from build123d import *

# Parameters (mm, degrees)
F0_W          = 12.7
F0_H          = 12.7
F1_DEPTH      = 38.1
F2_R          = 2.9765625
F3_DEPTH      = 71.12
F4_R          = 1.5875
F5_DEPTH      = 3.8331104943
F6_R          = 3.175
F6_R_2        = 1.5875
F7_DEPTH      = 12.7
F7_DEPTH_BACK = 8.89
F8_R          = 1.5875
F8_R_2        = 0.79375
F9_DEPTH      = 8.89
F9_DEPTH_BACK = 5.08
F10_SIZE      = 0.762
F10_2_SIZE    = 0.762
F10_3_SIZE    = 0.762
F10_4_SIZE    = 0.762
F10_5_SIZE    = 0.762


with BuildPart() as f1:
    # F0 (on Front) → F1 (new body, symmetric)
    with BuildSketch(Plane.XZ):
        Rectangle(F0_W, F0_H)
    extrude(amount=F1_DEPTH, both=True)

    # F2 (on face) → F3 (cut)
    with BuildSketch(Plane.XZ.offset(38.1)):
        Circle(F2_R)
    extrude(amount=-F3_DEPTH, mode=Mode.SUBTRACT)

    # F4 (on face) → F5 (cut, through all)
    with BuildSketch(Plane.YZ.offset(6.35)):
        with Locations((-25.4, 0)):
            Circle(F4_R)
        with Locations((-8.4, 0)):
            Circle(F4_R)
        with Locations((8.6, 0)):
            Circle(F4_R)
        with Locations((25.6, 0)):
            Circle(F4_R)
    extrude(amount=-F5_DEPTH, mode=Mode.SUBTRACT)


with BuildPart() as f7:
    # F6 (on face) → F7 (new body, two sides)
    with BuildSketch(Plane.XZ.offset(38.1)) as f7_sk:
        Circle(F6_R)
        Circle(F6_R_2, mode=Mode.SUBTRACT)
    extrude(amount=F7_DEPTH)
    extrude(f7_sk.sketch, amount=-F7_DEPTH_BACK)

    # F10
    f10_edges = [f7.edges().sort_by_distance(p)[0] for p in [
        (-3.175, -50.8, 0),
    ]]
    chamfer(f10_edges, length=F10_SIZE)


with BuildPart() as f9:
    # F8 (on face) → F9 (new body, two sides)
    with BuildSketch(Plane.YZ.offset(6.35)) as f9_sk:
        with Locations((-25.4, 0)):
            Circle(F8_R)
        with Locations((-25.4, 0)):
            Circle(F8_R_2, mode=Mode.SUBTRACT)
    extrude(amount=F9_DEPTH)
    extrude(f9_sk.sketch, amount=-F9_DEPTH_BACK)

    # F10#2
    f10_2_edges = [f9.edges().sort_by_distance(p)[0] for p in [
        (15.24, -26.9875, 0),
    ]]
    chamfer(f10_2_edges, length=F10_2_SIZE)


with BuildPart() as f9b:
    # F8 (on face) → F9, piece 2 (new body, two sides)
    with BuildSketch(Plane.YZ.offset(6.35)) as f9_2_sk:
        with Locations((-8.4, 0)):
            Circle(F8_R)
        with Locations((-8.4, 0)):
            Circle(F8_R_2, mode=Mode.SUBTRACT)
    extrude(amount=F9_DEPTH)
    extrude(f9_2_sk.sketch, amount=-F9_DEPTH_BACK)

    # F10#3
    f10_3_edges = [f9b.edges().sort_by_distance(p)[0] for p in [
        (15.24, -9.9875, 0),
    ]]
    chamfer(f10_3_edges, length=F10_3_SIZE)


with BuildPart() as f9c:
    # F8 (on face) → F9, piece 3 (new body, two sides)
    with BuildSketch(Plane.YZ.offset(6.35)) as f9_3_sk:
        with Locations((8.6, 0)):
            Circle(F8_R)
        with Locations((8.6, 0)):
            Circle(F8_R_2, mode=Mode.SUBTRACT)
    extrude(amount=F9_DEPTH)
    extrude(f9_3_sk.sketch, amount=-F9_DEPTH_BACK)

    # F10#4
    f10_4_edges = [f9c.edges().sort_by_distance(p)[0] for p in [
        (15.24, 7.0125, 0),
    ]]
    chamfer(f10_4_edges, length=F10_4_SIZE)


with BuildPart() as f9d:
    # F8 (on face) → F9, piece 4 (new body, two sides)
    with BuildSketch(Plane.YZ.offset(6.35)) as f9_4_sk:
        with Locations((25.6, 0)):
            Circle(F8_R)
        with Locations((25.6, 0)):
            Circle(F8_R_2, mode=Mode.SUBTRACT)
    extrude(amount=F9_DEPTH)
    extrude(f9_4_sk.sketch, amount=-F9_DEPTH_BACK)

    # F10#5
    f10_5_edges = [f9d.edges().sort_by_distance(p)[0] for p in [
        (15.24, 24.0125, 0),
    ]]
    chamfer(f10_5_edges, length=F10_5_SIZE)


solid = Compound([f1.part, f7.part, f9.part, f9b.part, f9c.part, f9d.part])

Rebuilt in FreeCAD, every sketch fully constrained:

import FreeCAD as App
import Part
import Sketcher
from FreeCAD import Vector
Q = App.Units.Quantity


def edges_at(feature, points):
    """Names of the edges that pass closest to the given points."""
    edges = feature.Shape.Edges
    near = lambda p: min(range(len(edges)), key=lambda i: edges[i].distToShape(Part.Vertex(*p))[0])
    return sorted({f"Edge{near(p) + 1}" for p in points})


def add_polygon(sketch, points):
    """Adds a closed chain of lines whose ends are joined by coincident constraints."""
    first, n = sketch.GeometryCount, len(points)
    for a, b in zip(points, points[1:] + points[:1]):
        sketch.addGeometry(Part.LineSegment(App.Vector(*a, 0), App.Vector(*b, 0)), False)
    for i in range(n):
        sketch.addConstraint(Sketcher.Constraint("Coincident", first + i, 2, first + (i + 1) % n, 1))

doc = App.newDocument("Part")
params = doc.addObject("Spreadsheet::Sheet", "Params")
for row, (alias, value) in enumerate([
    ("sketch1_width", "0.5 in"),
    ("pad1_length", "3 in"),
    ("sketch2_diameter", "0.234375 in"),
    ("pocket1_length", "2.8 in"),
    ("sketch3_diameter", "0.125 in"),
    ("pocket2_length", "3.83311 mm"),
    ("sketch4_diameter", "0.25 in"),
    ("sketch4_diameter2", "0.125 in"),
    ("pad2_length", "0.5 in"),
    ("pad2_length2", "0.35 in"),
    ("chamfer_size", "0.03 in"),
    ("sketch5_diameter", "0.125 in"),
    ("sketch5_diameter2", "0.0625 in"),
    ("pad3_length", "0.35 in"),
    ("pad3_length2", "0.2 in"),
    ("chamfer2_size", "0.03 in"),
    ("sketch6_diameter", "0.125 in"),
    ("sketch6_diameter2", "0.0625 in"),
    ("pad4_length", "0.35 in"),
    ("pad4_length2", "0.2 in"),
    ("chamfer3_size", "0.03 in"),
    ("sketch7_diameter", "0.125 in"),
    ("sketch7_diameter2", "0.0625 in"),
    ("pad5_length", "0.35 in"),
    ("pad5_length2", "0.2 in"),
    ("chamfer4_size", "0.03 in"),
    ("sketch8_diameter", "0.125 in"),
    ("sketch8_diameter2", "0.0625 in"),
    ("pad6_length", "0.35 in"),
    ("pad6_length2", "0.2 in"),
    ("chamfer5_size", "0.03 in"),
], start=1):
    params.set(f"A{row}", alias)
    params.set(f"B{row}", "=" + value)
    params.setAlias(f"B{row}", alias)

body = doc.addObject("PartDesign::Body", "Body")

# Sketch on XZ plane
sketch1 = body.newObject("Sketcher::SketchObject", "Sketch")
sketch1.AttachmentSupport = (doc.getObject("XZ_Plane"), [""])
sketch1.MapMode = "FlatFace"
add_polygon(sketch1, [(-6, 6), (-6, -6), (6, -6), (6, 6)])  # lines 0-3
sketch1.addConstraint(Sketcher.Constraint("Vertical", 0))
sketch1.addConstraint(Sketcher.Constraint("Horizontal", 1))
sketch1.addConstraint(Sketcher.Constraint("Vertical", 2))
sketch1.addConstraint(Sketcher.Constraint("Horizontal", 3))
sketch1.addConstraint(Sketcher.Constraint("Symmetric", 0, 2, 2, 2, -1, 1))
sketch1.addConstraint(Sketcher.Constraint("Equal", 3, 0))
sketch1.addConstraint(Sketcher.Constraint("DistanceX", 1, 1, 1, 2, Q("0.5 in")))
sketch1.setExpression("Constraints[10]", "Params.sketch1_width")
pad1 = body.newObject("PartDesign::Pad", "Pad")
pad1.Profile = sketch1
pad1.setExpression("Length", "Params.pad1_length")
pad1.Midplane = True

# Sketch on XZ plane
sketch2 = body.newObject("Sketcher::SketchObject", "Sketch001")
sketch2.AttachmentSupport = (doc.getObject("XZ_Plane"), [""])
sketch2.MapMode = "FlatFace"
sketch2.AttachmentOffset = App.Placement(Vector(0, 0, 1.5 * 25.4), App.Rotation())
sketch2.addGeometry(Part.Circle(Vector(0, 0, 0), Vector(0, 0, 1), 3), False)
sketch2.addConstraint(Sketcher.Constraint("Coincident", 0, 3, -1, 1))
sketch2.addConstraint(Sketcher.Constraint("Diameter", 0, Q("0.234375 in")))
sketch2.setExpression("Constraints[1]", "Params.sketch2_diameter")
pocket1 = body.newObject("PartDesign::Pocket", "Pocket")
pocket1.Profile = sketch2
pocket1.setExpression("Length", "Params.pocket1_length")

# Sketch on YZ plane
sketch3 = body.newObject("Sketcher::SketchObject", "Sketch002")
sketch3.AttachmentSupport = (doc.getObject("YZ_Plane"), [""])
sketch3.MapMode = "FlatFace"
sketch3.AttachmentOffset = App.Placement(Vector(0, 0, 0.25 * 25.4), App.Rotation())
sketch3.addGeometry(Part.Circle(Vector(-25.4, 0, 0), Vector(0, 0, 1), 1.6), False)
sketch3.addGeometry(Part.Circle(Vector(-8.4, 0, 0), Vector(0, 0, 1), 1.6), False)
sketch3.addGeometry(Part.Circle(Vector(8.6, 0, 0), Vector(0, 0, 1), 1.6), False)
sketch3.addGeometry(Part.Circle(Vector(25.6, 0, 0), Vector(0, 0, 1), 1.6), False)
sketch3.addConstraint(Sketcher.Constraint("Equal", 0, 1))
sketch3.addConstraint(Sketcher.Constraint("Equal", 1, 2))
sketch3.addConstraint(Sketcher.Constraint("Equal", 2, 3))
sketch3.addConstraint(Sketcher.Constraint("PointOnObject", 0, 3, -1))
sketch3.addConstraint(Sketcher.Constraint("PointOnObject", 1, 3, -1))
sketch3.addConstraint(Sketcher.Constraint("PointOnObject", 2, 3, -1))
sketch3.addConstraint(Sketcher.Constraint("PointOnObject", 3, 3, -1))
sketch3.addConstraint(Sketcher.Constraint("Diameter", 0, Q("0.125 in")))
sketch3.addConstraint(Sketcher.Constraint("DistanceX", 0, 3, -1, 1, Q("1 in")))
sketch3.addConstraint(Sketcher.Constraint("DistanceX", 1, 3, -1, 1, Q("8.4 mm")))
sketch3.addConstraint(Sketcher.Constraint("DistanceX", -1, 1, 2, 3, Q("8.6 mm")))
sketch3.addConstraint(Sketcher.Constraint("DistanceX", -1, 1, 3, 3, Q("25.6 mm")))
sketch3.setExpression("Constraints[7]", "Params.sketch3_diameter")
pocket2 = body.newObject("PartDesign::Pocket", "Pocket001")
pocket2.Profile = sketch3
pocket2.setExpression("Length", "Params.pocket2_length")
body2 = doc.addObject("PartDesign::Body", "Body001")

# Sketch on XZ plane
sketch4 = body2.newObject("Sketcher::SketchObject", "Sketch003")
sketch4.AttachmentSupport = (doc.getObject("XZ_Plane001"), [""])
sketch4.MapMode = "FlatFace"
sketch4.AttachmentOffset = App.Placement(Vector(0, 0, 1.5 * 25.4), App.Rotation())
sketch4.addGeometry(Part.Circle(Vector(0, 0, 0), Vector(0, 0, 1), 3.2), False)
sketch4.addGeometry(Part.Circle(Vector(0, 0, 0), Vector(0, 0, 1), 1.6), False)
sketch4.addConstraint(Sketcher.Constraint("Coincident", 0, 3, -1, 1))
sketch4.addConstraint(Sketcher.Constraint("Coincident", 1, 3, -1, 1))
sketch4.addConstraint(Sketcher.Constraint("Diameter", 0, Q("0.25 in")))
sketch4.addConstraint(Sketcher.Constraint("Diameter", 1, Q("0.125 in")))
sketch4.setExpression("Constraints[2]", "Params.sketch4_diameter")
sketch4.setExpression("Constraints[3]", "Params.sketch4_diameter2")
pad2 = body2.newObject("PartDesign::Pad", "Pad001")
pad2.Profile = sketch4
pad2.Type = "TwoLengths"
pad2.setExpression("Length", "Params.pad2_length")
pad2.setExpression("Length2", "Params.pad2_length2")
doc.recompute()

chamfer = body2.newObject("PartDesign::Chamfer", "Chamfer")
chamfer.Base = (pad2, edges_at(pad2, [(-3.175, -50.8, 0)]))
chamfer.setExpression("Size", "Params.chamfer_size")
body3 = doc.addObject("PartDesign::Body", "Body002")

# Sketch on YZ plane
sketch5 = body3.newObject("Sketcher::SketchObject", "Sketch004")
sketch5.AttachmentSupport = (doc.getObject("YZ_Plane002"), [""])
sketch5.MapMode = "FlatFace"
sketch5.AttachmentOffset = App.Placement(Vector(0, 0, 0.25 * 25.4), App.Rotation())
sketch5.addGeometry(Part.Circle(Vector(-25.4, 0, 0), Vector(0, 0, 1), 1.6), False)
sketch5.addGeometry(Part.Circle(Vector(-25.4, 0, 0), Vector(0, 0, 1), 0.8), False)
sketch5.addConstraint(Sketcher.Constraint("Coincident", 1, 3, 0, 3))
sketch5.addConstraint(Sketcher.Constraint("PointOnObject", 0, 3, -1))
sketch5.addConstraint(Sketcher.Constraint("Diameter", 0, Q("0.125 in")))
sketch5.addConstraint(Sketcher.Constraint("Diameter", 1, Q("0.0625 in")))
sketch5.addConstraint(Sketcher.Constraint("DistanceX", 0, 3, -1, 1, Q("1 in")))
sketch5.setExpression("Constraints[2]", "Params.sketch5_diameter")
sketch5.setExpression("Constraints[3]", "Params.sketch5_diameter2")
pad3 = body3.newObject("PartDesign::Pad", "Pad002")
pad3.Profile = sketch5
pad3.Type = "TwoLengths"
pad3.setExpression("Length", "Params.pad3_length")
pad3.setExpression("Length2", "Params.pad3_length2")
doc.recompute()

chamfer2 = body3.newObject("PartDesign::Chamfer", "Chamfer001")
chamfer2.Base = (pad3, edges_at(pad3, [(15.24, -26.988, 0)]))
chamfer2.setExpression("Size", "Params.chamfer2_size")
body4 = doc.addObject("PartDesign::Body", "Body003")

# Sketch on YZ plane
sketch6 = body4.newObject("Sketcher::SketchObject", "Sketch005")
sketch6.AttachmentSupport = (doc.getObject("YZ_Plane003"), [""])
sketch6.MapMode = "FlatFace"
sketch6.AttachmentOffset = App.Placement(Vector(0, 0, 0.25 * 25.4), App.Rotation())
sketch6.addGeometry(Part.Circle(Vector(-8.4, 0, 0), Vector(0, 0, 1), 1.6), False)
sketch6.addGeometry(Part.Circle(Vector(-8.4, 0, 0), Vector(0, 0, 1), 0.8), False)
sketch6.addConstraint(Sketcher.Constraint("Coincident", 1, 3, 0, 3))
sketch6.addConstraint(Sketcher.Constraint("PointOnObject", 0, 3, -1))
sketch6.addConstraint(Sketcher.Constraint("Diameter", 0, Q("0.125 in")))
sketch6.addConstraint(Sketcher.Constraint("Diameter", 1, Q("0.0625 in")))
sketch6.addConstraint(Sketcher.Constraint("DistanceX", 0, 3, -1, 1, Q("8.4 mm")))
sketch6.setExpression("Constraints[2]", "Params.sketch6_diameter")
sketch6.setExpression("Constraints[3]", "Params.sketch6_diameter2")
pad4 = body4.newObject("PartDesign::Pad", "Pad003")
pad4.Profile = sketch6
pad4.Type = "TwoLengths"
pad4.setExpression("Length", "Params.pad4_length")
pad4.setExpression("Length2", "Params.pad4_length2")
doc.recompute()

chamfer3 = body4.newObject("PartDesign::Chamfer", "Chamfer002")
chamfer3.Base = (pad4, edges_at(pad4, [(15.24, -9.988, 0)]))
chamfer3.setExpression("Size", "Params.chamfer3_size")
body5 = doc.addObject("PartDesign::Body", "Body004")

# Sketch on YZ plane
sketch7 = body5.newObject("Sketcher::SketchObject", "Sketch006")
sketch7.AttachmentSupport = (doc.getObject("YZ_Plane004"), [""])
sketch7.MapMode = "FlatFace"
sketch7.AttachmentOffset = App.Placement(Vector(0, 0, 0.25 * 25.4), App.Rotation())
sketch7.addGeometry(Part.Circle(Vector(8.6, 0, 0), Vector(0, 0, 1), 1.6), False)
sketch7.addGeometry(Part.Circle(Vector(8.6, 0, 0), Vector(0, 0, 1), 0.8), False)
sketch7.addConstraint(Sketcher.Constraint("Coincident", 1, 3, 0, 3))
sketch7.addConstraint(Sketcher.Constraint("PointOnObject", 0, 3, -1))
sketch7.addConstraint(Sketcher.Constraint("Diameter", 0, Q("0.125 in")))
sketch7.addConstraint(Sketcher.Constraint("Diameter", 1, Q("0.0625 in")))
sketch7.addConstraint(Sketcher.Constraint("DistanceX", -1, 1, 0, 3, Q("8.6 mm")))
sketch7.setExpression("Constraints[2]", "Params.sketch7_diameter")
sketch7.setExpression("Constraints[3]", "Params.sketch7_diameter2")
pad5 = body5.newObject("PartDesign::Pad", "Pad004")
pad5.Profile = sketch7
pad5.Type = "TwoLengths"
pad5.setExpression("Length", "Params.pad5_length")
pad5.setExpression("Length2", "Params.pad5_length2")
doc.recompute()

chamfer4 = body5.newObject("PartDesign::Chamfer", "Chamfer003")
chamfer4.Base = (pad5, edges_at(pad5, [(15.24, 7.013, 0)]))
chamfer4.setExpression("Size", "Params.chamfer4_size")
body6 = doc.addObject("PartDesign::Body", "Body005")

# Sketch on YZ plane
sketch8 = body6.newObject("Sketcher::SketchObject", "Sketch007")
sketch8.AttachmentSupport = (doc.getObject("YZ_Plane005"), [""])
sketch8.MapMode = "FlatFace"
sketch8.AttachmentOffset = App.Placement(Vector(0, 0, 0.25 * 25.4), App.Rotation())
sketch8.addGeometry(Part.Circle(Vector(25.6, 0, 0), Vector(0, 0, 1), 1.6), False)
sketch8.addGeometry(Part.Circle(Vector(25.6, 0, 0), Vector(0, 0, 1), 0.8), False)
sketch8.addConstraint(Sketcher.Constraint("Coincident", 1, 3, 0, 3))
sketch8.addConstraint(Sketcher.Constraint("PointOnObject", 0, 3, -1))
sketch8.addConstraint(Sketcher.Constraint("Diameter", 0, Q("0.125 in")))
sketch8.addConstraint(Sketcher.Constraint("Diameter", 1, Q("0.0625 in")))
sketch8.addConstraint(Sketcher.Constraint("DistanceX", -1, 1, 0, 3, Q("25.6 mm")))
sketch8.setExpression("Constraints[2]", "Params.sketch8_diameter")
sketch8.setExpression("Constraints[3]", "Params.sketch8_diameter2")
pad6 = body6.newObject("PartDesign::Pad", "Pad005")
pad6.Profile = sketch8
pad6.Type = "TwoLengths"
pad6.setExpression("Length", "Params.pad6_length")
pad6.setExpression("Length2", "Params.pad6_length2")
doc.recompute()

chamfer5 = body6.newObject("PartDesign::Chamfer", "Chamfer004")
chamfer5.Base = (pad6, edges_at(pad6, [(15.24, 24.012, 0)]))
chamfer5.setExpression("Size", "Params.chamfer5_size")

doc.recompute()
